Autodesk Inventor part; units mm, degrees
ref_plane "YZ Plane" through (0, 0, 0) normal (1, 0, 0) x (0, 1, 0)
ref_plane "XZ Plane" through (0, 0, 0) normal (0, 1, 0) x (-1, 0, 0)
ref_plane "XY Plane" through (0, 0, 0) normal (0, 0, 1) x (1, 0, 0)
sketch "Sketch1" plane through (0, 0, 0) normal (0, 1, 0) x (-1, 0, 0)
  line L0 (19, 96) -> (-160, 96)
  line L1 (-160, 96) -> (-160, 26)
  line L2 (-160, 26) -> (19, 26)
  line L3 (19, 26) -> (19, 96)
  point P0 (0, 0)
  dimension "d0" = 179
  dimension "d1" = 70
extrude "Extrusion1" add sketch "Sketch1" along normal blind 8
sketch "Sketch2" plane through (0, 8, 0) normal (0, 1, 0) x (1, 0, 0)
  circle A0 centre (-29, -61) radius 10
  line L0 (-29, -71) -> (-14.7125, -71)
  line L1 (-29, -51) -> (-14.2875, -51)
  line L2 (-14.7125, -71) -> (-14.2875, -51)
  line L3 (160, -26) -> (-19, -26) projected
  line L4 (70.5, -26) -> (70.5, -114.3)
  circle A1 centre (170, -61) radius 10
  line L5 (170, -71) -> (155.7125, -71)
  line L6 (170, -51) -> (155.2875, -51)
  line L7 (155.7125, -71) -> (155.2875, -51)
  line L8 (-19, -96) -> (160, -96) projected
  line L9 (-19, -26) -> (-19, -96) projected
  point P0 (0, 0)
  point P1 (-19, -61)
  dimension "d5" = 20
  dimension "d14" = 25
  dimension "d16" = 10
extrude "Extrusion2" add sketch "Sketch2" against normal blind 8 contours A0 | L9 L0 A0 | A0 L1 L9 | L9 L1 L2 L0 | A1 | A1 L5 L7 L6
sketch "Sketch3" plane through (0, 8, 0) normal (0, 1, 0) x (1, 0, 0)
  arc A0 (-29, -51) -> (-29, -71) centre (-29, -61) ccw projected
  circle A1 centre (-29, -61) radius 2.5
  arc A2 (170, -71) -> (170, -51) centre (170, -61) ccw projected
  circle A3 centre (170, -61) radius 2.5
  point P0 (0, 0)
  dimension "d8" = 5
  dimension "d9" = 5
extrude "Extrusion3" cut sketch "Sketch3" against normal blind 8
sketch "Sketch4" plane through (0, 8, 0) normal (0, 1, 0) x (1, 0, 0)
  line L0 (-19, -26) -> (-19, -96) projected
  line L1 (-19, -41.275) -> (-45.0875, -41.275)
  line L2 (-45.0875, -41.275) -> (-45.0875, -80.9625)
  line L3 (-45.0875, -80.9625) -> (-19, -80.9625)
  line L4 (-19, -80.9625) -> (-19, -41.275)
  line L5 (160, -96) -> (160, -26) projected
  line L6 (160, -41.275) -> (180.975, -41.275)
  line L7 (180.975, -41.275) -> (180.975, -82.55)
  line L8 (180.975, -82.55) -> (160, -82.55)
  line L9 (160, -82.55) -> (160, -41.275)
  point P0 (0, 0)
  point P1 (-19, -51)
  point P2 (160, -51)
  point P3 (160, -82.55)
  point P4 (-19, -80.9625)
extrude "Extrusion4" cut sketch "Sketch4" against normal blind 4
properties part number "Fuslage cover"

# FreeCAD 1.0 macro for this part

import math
import FreeCAD as App
import Part
import Sketcher
from FreeCAD import Vector
Q = App.Units.Quantity

doc = App.newDocument("Part")
params = doc.addObject("Spreadsheet::Sheet", "Params")
for row, (alias, value) in enumerate([
    ("sketch1_width", "179 mm"),
    ("sketch1_height", "70 mm"),
    ("pad1_length", "8 mm"),
    ("sketch2_radius", "10 mm"),
    ("pad2_length", "8 mm"),
    ("sketch3_diameter", "5 mm"),
    ("pocket1_length", "8 mm"),
    ("pocket2_length", "4 mm"),
], start=1):
    params.set(f"A{row}", alias)
    params.set(f"B{row}", "=" + value)
    params.setAlias(f"B{row}", alias)

body = doc.addObject("PartDesign::Body", "Body")

# Sketch on XZ plane
sketch1 = body.newObject("Sketcher::SketchObject", "Sketch")
sketch1.AttachmentSupport = (doc.getObject("XZ_Plane"), [""])
sketch1.MapMode = "FlatFace"
sketch1.addGeometry([
    Part.LineSegment(Vector(-19, 26, 0), Vector(-19, 96, 0)),
    Part.LineSegment(Vector(-19, 96, 0), Vector(160, 96, 0)),
    Part.LineSegment(Vector(160, 96, 0), Vector(160, 26, 0)),
    Part.LineSegment(Vector(160, 26, 0), Vector(-19, 26, 0)),
], False)
sketch1.addConstraint([
    Sketcher.Constraint("Coincident", 0, 2, 1, 1),
    Sketcher.Constraint("Coincident", 1, 2, 2, 1),
    Sketcher.Constraint("Coincident", 2, 2, 3, 1),
    Sketcher.Constraint("Coincident", 3, 2, 0, 1),
    Sketcher.Constraint("Vertical", 0),
    Sketcher.Constraint("Horizontal", 1),
    Sketcher.Constraint("Vertical", 2),
    Sketcher.Constraint("Horizontal", 3),
    Sketcher.Constraint("DistanceX", 1, 1, 1, 2, Q("179 mm")),
    Sketcher.Constraint("DistanceY", 0, 1, 0, 2, Q("70 mm")),
    Sketcher.Constraint("DistanceX", 0, 2, -1, 1, Q("19 mm")),
    Sketcher.Constraint("DistanceY", -1, 1, 0, 2, Q("96 mm")),
])
sketch1.setExpression("Constraints[8]", "Params.sketch1_width")
sketch1.setExpression("Constraints[9]", "Params.sketch1_height")
pad1 = body.newObject("PartDesign::Pad", "Pad")
pad1.Profile = sketch1
pad1.setExpression("Length", "Params.pad1_length")
pad1.Reversed = True

# Sketch on XZ plane
sketch2 = body.newObject("Sketcher::SketchObject", "Sketch001")
sketch2.AttachmentSupport = (doc.getObject("XZ_Plane"), [""])
sketch2.MapMode = "FlatFace"
sketch2.AttachmentOffset = App.Placement(Vector(0, 0, -8), App.Rotation())
sketch2.addGeometry([
    Part.ArcOfCircle(Part.Circle(Vector(-29, 61, 0), Vector(0, 0, 1), 10), math.radians(90), math.radians(270)),  # 0
    Part.LineSegment(Vector(-29, 71, 0), Vector(-15, 71, 0)),  # 1
    Part.LineSegment(Vector(-15, 71, 0), Vector(-14, 51, 0)),  # 2
    Part.LineSegment(Vector(-14, 51, 0), Vector(-29, 51, 0)),  # 3
    Part.ArcOfCircle(Part.Circle(Vector(170, 61, 0), Vector(0, 0, 1), 10), math.radians(-90), math.radians(90)),  # 4
    Part.LineSegment(Vector(170, 51, 0), Vector(155, 51, 0)),  # 5
    Part.LineSegment(Vector(155, 51, 0), Vector(156, 71, 0)),  # 6
    Part.LineSegment(Vector(156, 71, 0), Vector(170, 71, 0)),  # 7
], False)
sketch2.addConstraint([
    Sketcher.Constraint("Tangent", 0, 1, 1, 1),
    Sketcher.Constraint("Coincident", 1, 2, 2, 1),
    Sketcher.Constraint("Coincident", 2, 2, 3, 1),
    Sketcher.Constraint("Tangent", 3, 2, 0, 2),
    Sketcher.Constraint("Tangent", 4, 1, 5, 1),
    Sketcher.Constraint("Coincident", 5, 2, 6, 1),
    Sketcher.Constraint("Coincident", 6, 2, 7, 1),
    Sketcher.Constraint("Tangent", 7, 2, 4, 2),
    Sketcher.Constraint("Horizontal", 1),
    Sketcher.Constraint("Horizontal", 3),
    Sketcher.Constraint("Horizontal", 5),
    Sketcher.Constraint("Horizontal", 7),
    Sketcher.Constraint("Equal", 0, 4),
    Sketcher.Constraint("Horizontal", 0, 3, 4, 3),
    Sketcher.Constraint("Equal", 3, 5),
    Sketcher.Constraint("Equal", 1, 7),
    Sketcher.Constraint("Radius", 0, Q("10 mm")),
    Sketcher.Constraint("DistanceX", 0, 3, -1, 1, Q("29 mm")),
    Sketcher.Constraint("DistanceY", -1, 1, 0, 3, Q("61 mm")),
    Sketcher.Constraint("DistanceX", -1, 1, 4, 3, Q("170 mm")),
    Sketcher.Constraint("DistanceX", 1, 2, 5, 2, Q("170 mm")),
    Sketcher.Constraint("DistanceX", 1, 1, 1, 2, Q("14.2875 mm")),
])
sketch2.setExpression("Constraints[16]", "Params.sketch2_radius")
pad2 = body.newObject("PartDesign::Pad", "Pad001")
pad2.Profile = sketch2
pad2.setExpression("Length", "Params.pad2_length")

# Sketch on XZ plane
sketch3 = body.newObject("Sketcher::SketchObject", "Sketch002")
sketch3.AttachmentSupport = (doc.getObject("XZ_Plane"), [""])
sketch3.MapMode = "FlatFace"
sketch3.AttachmentOffset = App.Placement(Vector(0, 0, -8), App.Rotation())
sketch3.addGeometry([
    Part.Circle(Vector(-29, 61, 0), Vector(0, 0, 1), 2.5),
    Part.Circle(Vector(170, 61, 0), Vector(0, 0, 1), 2.5),
], False)
sketch3.addConstraint([
    Sketcher.Constraint("Equal", 0, 1),
    Sketcher.Constraint("Horizontal", 0, 3, 1, 3),
    Sketcher.Constraint("Diameter", 0, Q("5 mm")),
    Sketcher.Constraint("DistanceX", 0, 3, -1, 1, Q("29 mm")),
    Sketcher.Constraint("DistanceY", -1, 1, 0, 3, Q("61 mm")),
    Sketcher.Constraint("DistanceX", -1, 1, 1, 3, Q("170 mm")),
])
sketch3.setExpression("Constraints[2]", "Params.sketch3_diameter")
pocket1 = body.newObject("PartDesign::Pocket", "Pocket")
pocket1.Profile = sketch3
pocket1.setExpression("Length", "Params.pocket1_length")
pocket1.Reversed = True

# Sketch on XZ plane
sketch4 = body.newObject("Sketcher::SketchObject", "Sketch003")
sketch4.AttachmentSupport = (doc.getObject("XZ_Plane"), [""])
sketch4.MapMode = "FlatFace"
sketch4.AttachmentOffset = App.Placement(Vector(0, 0, -8), App.Rotation())
sketch4.addGeometry([
    Part.LineSegment(Vector(-19, 81, 0), Vector(-19, 41, 0)),  # 0
    Part.LineSegment(Vector(-19, 41, 0), Vector(-45, 41, 0)),  # 1
    Part.LineSegment(Vector(-45, 41, 0), Vector(-45, 81, 0)),  # 2
    Part.LineSegment(Vector(-45, 81, 0), Vector(-19, 81, 0)),  # 3
    Part.LineSegment(Vector(160, 41, 0), Vector(160, 83, 0)),  # 4
    Part.LineSegment(Vector(160, 83, 0), Vector(181, 83, 0)),  # 5
    Part.LineSegment(Vector(181, 83, 0), Vector(181, 41, 0)),  # 6
    Part.LineSegment(Vector(181, 41, 0), Vector(160, 41, 0)),  # 7
], False)
sketch4.addConstraint([
    Sketcher.Constraint("Coincident", 0, 2, 1, 1),
    Sketcher.Constraint("Coincident", 1, 2, 2, 1),
    Sketcher.Constraint("Coincident", 2, 2, 3, 1),
    Sketcher.Constraint("Coincident", 3, 2, 0, 1),
    Sketcher.Constraint("Coincident", 4, 2, 5, 1),
    Sketcher.Constraint("Coincident", 5, 2, 6, 1),
    Sketcher.Constraint("Coincident", 6, 2, 7, 1),
    Sketcher.Constraint("Coincident", 7, 2, 4, 1),
    Sketcher.Constraint("Vertical", 0),
    Sketcher.Constraint("Horizontal", 1),
    Sketcher.Constraint("Vertical", 2),
    Sketcher.Constraint("Horizontal", 3),
    Sketcher.Constraint("Vertical", 4),
    Sketcher.Constraint("Horizontal", 5),
    Sketcher.Constraint("Vertical", 6),
    Sketcher.Constraint("Horizontal", 7),
    Sketcher.Constraint("Horizontal", 1, 2, 6, 2),
    Sketcher.Constraint("DistanceX", 0, 2, -1, 1, Q("19 mm")),
    Sketcher.Constraint("DistanceX", -1, 1, 4, 2, Q("160 mm")),
    Sketcher.Constraint("DistanceX", 5, 1, 5, 2, Q("20.975 mm")),
    Sketcher.Constraint("DistanceY", 4, 1, 4, 2, Q("41.275 mm")),
    Sketcher.Constraint("DistanceY", -1, 1, 4, 2, Q("82.55 mm")),
    Sketcher.Constraint("DistanceX", 1, 2, 1, 1, Q("26.0875 mm")),
    Sketcher.Constraint("DistanceY", 0, 2, 0, 1, Q("39.6875 mm")),
])
pocket2 = body.newObject("PartDesign::Pocket", "Pocket001")
pocket2.Profile = sketch4
pocket2.setExpression("Length", "Params.pocket2_length")
pocket2.Reversed = True

doc.recompute()
